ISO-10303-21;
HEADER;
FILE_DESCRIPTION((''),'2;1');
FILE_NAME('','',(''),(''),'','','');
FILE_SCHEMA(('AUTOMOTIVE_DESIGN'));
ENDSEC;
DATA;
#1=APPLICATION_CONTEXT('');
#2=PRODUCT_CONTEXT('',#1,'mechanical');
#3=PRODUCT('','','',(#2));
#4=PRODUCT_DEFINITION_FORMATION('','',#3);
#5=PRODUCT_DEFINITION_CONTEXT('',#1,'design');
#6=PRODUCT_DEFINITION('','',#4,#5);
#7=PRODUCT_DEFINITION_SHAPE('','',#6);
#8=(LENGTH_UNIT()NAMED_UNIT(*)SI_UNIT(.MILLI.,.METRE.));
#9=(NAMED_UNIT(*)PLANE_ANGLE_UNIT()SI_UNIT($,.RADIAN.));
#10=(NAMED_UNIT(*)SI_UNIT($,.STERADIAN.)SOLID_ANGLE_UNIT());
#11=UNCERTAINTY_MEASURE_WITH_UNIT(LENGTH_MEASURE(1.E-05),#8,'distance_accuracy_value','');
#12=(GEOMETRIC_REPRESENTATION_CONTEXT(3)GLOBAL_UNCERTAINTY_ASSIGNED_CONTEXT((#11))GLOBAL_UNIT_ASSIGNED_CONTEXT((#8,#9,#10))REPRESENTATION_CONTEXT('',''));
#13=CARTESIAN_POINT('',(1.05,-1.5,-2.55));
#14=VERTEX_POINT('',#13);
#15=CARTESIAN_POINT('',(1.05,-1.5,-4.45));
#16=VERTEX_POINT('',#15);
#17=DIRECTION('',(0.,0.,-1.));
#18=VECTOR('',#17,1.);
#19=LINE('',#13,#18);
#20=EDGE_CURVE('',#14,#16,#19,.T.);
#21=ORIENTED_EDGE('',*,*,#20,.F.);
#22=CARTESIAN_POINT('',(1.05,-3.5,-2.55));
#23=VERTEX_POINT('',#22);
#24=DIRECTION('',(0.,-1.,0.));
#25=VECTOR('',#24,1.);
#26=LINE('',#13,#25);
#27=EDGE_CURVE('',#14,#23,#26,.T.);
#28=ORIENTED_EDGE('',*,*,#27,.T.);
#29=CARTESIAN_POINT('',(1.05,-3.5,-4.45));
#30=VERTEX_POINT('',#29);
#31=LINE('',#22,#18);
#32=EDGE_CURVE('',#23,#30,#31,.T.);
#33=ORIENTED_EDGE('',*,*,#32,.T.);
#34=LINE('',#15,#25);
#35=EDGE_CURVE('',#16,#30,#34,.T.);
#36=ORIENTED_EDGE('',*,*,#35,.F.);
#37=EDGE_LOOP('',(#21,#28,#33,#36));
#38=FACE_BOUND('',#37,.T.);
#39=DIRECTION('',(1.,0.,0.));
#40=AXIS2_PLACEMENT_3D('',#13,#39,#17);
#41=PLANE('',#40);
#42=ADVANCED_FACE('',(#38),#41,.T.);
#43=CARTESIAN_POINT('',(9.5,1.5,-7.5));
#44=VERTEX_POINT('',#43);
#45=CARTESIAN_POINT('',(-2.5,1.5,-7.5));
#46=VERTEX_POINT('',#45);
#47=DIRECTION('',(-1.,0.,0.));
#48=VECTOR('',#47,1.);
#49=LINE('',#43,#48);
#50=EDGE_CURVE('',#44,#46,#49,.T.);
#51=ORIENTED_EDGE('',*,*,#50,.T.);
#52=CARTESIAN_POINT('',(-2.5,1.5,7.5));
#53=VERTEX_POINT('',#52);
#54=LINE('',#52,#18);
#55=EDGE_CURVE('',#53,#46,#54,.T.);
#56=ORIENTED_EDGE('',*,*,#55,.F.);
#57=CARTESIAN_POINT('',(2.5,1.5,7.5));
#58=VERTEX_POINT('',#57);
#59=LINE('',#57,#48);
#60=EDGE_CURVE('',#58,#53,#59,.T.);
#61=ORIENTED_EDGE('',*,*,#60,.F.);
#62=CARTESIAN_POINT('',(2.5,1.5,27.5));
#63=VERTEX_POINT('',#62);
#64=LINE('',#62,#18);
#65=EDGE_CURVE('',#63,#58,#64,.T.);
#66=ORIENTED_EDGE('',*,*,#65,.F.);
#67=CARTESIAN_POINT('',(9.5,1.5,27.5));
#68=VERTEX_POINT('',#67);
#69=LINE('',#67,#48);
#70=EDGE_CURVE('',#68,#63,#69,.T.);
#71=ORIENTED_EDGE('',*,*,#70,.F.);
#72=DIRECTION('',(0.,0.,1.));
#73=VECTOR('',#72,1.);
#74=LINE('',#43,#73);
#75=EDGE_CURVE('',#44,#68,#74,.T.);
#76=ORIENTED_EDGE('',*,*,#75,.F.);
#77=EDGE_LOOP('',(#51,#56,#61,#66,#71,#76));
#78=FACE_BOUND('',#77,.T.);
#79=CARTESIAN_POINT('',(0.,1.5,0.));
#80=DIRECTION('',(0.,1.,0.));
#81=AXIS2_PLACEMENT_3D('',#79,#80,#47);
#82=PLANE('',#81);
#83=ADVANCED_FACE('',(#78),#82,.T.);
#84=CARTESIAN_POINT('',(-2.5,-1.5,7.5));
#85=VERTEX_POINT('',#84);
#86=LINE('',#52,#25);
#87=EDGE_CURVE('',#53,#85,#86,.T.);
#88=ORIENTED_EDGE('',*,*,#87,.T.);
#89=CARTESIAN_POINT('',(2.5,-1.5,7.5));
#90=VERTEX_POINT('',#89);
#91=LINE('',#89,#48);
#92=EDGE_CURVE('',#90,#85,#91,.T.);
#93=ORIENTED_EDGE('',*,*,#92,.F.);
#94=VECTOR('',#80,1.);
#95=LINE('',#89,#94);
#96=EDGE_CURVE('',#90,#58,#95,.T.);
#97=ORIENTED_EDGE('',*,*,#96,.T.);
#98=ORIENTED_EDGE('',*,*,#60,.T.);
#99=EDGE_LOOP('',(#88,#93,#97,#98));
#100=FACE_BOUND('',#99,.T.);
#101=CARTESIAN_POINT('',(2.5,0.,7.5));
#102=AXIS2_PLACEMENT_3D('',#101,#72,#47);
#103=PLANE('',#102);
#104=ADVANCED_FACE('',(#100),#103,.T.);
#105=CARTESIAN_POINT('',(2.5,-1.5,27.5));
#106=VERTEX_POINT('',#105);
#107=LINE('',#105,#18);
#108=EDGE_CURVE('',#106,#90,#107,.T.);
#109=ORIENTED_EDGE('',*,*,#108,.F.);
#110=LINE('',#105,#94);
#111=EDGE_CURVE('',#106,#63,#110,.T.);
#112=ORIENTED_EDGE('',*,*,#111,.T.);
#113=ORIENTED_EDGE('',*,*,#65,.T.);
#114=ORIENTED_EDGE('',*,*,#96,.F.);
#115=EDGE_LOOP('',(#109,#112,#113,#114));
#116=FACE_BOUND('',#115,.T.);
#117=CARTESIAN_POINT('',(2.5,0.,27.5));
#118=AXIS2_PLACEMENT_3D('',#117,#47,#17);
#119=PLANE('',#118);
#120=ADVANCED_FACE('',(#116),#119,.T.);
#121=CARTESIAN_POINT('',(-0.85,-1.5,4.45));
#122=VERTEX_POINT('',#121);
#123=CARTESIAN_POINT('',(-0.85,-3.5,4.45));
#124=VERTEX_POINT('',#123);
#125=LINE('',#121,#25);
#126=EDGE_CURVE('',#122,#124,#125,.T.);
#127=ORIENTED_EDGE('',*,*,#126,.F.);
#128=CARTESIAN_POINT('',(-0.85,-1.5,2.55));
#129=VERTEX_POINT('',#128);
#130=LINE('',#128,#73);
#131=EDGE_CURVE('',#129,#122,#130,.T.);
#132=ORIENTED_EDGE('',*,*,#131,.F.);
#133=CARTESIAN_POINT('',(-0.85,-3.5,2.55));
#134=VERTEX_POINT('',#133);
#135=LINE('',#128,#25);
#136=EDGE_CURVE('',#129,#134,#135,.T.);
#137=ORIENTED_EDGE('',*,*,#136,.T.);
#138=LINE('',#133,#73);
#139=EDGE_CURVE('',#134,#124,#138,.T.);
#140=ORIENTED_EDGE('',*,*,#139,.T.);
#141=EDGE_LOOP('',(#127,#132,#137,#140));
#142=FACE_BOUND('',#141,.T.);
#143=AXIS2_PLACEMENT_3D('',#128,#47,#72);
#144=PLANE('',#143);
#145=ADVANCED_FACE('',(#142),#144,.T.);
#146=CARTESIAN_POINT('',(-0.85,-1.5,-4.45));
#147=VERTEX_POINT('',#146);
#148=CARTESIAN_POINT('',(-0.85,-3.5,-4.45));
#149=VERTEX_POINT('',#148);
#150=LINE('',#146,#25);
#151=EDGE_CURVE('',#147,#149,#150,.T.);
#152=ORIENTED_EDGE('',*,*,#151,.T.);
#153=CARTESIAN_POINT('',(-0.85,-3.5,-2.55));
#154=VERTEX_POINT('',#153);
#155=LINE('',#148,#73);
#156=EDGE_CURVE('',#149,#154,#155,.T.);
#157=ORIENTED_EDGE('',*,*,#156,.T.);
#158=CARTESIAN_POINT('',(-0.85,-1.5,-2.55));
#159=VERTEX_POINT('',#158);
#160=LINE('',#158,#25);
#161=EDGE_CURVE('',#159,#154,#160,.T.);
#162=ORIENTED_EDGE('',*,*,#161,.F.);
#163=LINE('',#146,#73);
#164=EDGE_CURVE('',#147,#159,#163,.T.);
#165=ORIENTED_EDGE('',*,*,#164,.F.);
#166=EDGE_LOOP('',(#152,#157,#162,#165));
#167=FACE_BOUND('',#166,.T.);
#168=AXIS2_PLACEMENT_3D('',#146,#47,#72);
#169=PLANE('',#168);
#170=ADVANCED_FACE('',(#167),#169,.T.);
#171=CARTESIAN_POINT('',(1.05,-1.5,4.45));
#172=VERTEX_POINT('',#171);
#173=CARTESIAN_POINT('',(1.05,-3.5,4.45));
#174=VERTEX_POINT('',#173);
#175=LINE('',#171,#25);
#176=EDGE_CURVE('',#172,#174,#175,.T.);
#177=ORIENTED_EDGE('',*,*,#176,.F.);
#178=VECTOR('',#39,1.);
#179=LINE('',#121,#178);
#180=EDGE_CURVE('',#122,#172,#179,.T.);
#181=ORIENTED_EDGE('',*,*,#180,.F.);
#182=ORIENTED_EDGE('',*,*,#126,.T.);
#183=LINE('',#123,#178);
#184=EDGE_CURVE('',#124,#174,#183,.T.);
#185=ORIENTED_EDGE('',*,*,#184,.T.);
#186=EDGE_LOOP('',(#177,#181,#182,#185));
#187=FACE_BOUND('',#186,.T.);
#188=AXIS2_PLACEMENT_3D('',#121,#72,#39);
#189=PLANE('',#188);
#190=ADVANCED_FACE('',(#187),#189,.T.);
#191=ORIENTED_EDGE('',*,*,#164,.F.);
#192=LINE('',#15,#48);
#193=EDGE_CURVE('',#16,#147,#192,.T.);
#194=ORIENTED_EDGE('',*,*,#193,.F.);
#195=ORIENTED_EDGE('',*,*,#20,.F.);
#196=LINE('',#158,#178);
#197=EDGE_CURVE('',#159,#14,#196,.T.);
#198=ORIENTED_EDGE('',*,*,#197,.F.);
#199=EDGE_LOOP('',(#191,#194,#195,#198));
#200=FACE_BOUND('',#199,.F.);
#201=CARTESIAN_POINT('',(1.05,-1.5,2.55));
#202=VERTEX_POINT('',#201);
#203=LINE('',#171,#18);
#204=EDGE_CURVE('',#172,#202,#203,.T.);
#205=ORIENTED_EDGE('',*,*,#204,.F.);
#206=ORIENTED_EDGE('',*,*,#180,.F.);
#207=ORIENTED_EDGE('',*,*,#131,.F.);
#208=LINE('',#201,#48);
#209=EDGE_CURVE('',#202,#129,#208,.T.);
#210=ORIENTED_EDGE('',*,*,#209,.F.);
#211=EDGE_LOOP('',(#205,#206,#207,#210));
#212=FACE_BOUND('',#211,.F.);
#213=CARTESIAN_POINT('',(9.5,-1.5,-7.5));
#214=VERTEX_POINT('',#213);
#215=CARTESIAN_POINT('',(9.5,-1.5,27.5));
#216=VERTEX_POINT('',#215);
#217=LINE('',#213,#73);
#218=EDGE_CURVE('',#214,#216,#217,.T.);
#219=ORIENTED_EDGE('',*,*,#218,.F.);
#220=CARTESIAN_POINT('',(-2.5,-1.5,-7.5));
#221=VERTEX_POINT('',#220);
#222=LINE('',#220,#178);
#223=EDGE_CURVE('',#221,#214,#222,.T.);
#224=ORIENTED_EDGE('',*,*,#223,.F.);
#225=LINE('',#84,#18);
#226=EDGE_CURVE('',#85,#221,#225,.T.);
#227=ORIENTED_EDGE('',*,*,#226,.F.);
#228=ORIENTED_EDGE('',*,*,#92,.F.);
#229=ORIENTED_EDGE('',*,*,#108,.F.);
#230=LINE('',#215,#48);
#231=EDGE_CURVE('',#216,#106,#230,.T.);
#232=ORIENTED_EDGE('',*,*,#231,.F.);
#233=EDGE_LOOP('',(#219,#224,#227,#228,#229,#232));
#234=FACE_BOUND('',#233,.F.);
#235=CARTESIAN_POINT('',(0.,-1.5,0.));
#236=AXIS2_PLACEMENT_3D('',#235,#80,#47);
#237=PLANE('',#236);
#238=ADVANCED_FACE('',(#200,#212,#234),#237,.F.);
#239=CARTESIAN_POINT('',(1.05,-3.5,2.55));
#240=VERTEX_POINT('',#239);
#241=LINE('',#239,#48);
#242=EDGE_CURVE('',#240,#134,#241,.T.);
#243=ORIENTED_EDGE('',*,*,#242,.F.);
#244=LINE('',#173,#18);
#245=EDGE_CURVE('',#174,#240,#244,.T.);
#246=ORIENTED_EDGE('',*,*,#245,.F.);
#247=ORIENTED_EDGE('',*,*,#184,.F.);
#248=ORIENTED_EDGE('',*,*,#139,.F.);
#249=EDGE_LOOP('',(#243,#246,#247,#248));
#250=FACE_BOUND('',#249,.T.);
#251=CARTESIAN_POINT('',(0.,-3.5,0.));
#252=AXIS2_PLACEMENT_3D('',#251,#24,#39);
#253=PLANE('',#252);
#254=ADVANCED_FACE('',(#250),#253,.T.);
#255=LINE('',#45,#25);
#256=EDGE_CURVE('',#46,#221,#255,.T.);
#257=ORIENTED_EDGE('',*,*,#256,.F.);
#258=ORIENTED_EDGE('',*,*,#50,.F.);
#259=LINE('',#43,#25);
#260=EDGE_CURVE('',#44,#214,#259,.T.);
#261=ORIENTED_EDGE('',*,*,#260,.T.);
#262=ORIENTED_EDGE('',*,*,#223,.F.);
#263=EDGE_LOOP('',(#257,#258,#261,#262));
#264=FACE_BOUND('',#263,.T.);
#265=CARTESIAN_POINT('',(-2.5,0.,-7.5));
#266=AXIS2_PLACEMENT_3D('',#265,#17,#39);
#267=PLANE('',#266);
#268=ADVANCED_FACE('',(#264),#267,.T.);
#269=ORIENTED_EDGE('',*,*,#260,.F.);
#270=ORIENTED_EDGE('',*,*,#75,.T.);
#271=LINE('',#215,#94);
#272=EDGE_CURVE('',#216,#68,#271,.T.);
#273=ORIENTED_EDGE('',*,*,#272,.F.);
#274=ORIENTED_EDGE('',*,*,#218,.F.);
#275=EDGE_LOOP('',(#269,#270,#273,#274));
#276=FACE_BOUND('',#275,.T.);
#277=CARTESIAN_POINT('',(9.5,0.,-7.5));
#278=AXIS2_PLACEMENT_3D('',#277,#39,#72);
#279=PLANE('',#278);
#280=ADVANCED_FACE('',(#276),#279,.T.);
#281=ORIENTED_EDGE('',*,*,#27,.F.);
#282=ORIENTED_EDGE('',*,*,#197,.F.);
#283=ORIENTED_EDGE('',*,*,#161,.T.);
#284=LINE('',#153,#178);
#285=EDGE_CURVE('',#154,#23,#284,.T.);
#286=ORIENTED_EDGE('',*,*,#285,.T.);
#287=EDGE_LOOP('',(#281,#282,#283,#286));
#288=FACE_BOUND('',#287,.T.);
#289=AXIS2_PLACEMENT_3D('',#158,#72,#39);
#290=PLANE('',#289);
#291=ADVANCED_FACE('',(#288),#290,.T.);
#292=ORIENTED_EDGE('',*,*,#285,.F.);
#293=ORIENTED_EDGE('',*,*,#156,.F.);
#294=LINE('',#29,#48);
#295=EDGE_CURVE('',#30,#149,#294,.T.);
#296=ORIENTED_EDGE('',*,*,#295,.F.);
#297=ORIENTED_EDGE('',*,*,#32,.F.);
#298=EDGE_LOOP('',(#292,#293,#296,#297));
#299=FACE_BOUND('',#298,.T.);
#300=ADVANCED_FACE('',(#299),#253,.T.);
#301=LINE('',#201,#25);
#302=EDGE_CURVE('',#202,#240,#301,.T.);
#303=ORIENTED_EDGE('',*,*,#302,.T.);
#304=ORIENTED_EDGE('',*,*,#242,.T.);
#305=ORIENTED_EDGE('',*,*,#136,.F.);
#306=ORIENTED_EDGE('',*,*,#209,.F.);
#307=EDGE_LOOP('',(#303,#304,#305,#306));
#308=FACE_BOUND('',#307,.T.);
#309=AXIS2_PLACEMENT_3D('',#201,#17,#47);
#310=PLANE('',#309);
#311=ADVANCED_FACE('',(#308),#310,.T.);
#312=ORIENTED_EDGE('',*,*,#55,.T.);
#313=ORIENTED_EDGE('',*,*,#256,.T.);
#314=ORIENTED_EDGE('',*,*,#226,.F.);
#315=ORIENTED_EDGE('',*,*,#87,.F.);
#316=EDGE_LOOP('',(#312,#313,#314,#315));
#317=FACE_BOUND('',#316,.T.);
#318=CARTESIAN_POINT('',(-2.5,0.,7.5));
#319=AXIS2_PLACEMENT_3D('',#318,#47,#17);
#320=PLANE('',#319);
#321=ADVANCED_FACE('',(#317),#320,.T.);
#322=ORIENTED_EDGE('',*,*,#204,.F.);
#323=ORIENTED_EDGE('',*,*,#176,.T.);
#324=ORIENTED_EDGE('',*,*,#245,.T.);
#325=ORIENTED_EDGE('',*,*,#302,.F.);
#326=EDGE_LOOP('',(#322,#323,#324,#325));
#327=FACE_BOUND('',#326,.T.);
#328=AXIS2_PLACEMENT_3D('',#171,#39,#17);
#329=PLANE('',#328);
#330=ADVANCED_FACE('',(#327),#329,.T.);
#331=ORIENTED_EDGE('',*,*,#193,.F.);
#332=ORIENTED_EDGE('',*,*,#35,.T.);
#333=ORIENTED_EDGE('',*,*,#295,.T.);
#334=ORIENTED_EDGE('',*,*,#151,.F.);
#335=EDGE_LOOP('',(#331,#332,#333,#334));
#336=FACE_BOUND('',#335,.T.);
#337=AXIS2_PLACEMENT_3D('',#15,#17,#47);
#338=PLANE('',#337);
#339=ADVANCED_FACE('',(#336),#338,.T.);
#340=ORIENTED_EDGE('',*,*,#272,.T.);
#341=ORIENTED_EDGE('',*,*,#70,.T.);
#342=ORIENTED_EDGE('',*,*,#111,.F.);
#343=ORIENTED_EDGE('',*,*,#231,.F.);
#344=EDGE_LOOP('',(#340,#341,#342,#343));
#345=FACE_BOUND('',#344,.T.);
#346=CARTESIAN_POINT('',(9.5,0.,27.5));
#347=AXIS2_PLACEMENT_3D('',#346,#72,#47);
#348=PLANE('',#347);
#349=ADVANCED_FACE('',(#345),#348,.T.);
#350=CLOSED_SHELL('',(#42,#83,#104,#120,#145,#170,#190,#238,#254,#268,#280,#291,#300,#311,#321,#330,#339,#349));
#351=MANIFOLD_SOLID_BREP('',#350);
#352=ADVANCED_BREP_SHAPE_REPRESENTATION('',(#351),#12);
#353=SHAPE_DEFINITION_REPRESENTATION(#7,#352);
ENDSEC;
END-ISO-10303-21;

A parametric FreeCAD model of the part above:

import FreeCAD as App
import Part
import Sketcher
Q = App.Units.Quantity

doc = App.newDocument("Part")
body = doc.addObject("PartDesign::Body", "Body")

# Sketch on XZ plane
sketch1 = body.newObject("Sketcher::SketchObject", "Sketch")
sketch1.AttachmentSupport = (doc.getObject("XZ_Plane"), [""])
sketch1.MapMode = "FlatFace"
sketch1.addGeometry(Part.LineSegment(App.Vector(-2, 8, 0), App.Vector(2, 8, 0)), False)
sketch1.addGeometry(Part.LineSegment(App.Vector(2, 8, 0), App.Vector(2, 28, 0)), False)
sketch1.addGeometry(Part.LineSegment(App.Vector(2, 28, 0), App.Vector(10, 28, 0)), False)
sketch1.addGeometry(Part.LineSegment(App.Vector(10, 28, 0), App.Vector(10, -8, 0)), False)
sketch1.addGeometry(Part.LineSegment(App.Vector(10, -8, 0), App.Vector(-2, -8, 0)), False)
sketch1.addGeometry(Part.LineSegment(App.Vector(-2, -8, 0), App.Vector(-2, 8, 0)), False)
sketch1.addConstraint(Sketcher.Constraint("Coincident", 0, 2, 1, 1))
sketch1.addConstraint(Sketcher.Constraint("Coincident", 1, 2, 2, 1))
sketch1.addConstraint(Sketcher.Constraint("Coincident", 2, 2, 3, 1))
sketch1.addConstraint(Sketcher.Constraint("Coincident", 3, 2, 4, 1))
sketch1.addConstraint(Sketcher.Constraint("Coincident", 4, 2, 5, 1))
sketch1.addConstraint(Sketcher.Constraint("Coincident", 5, 2, 0, 1))
sketch1.addConstraint(Sketcher.Constraint("Horizontal", 0))
sketch1.addConstraint(Sketcher.Constraint("Vertical", 1))
sketch1.addConstraint(Sketcher.Constraint("Horizontal", 2))
sketch1.addConstraint(Sketcher.Constraint("Vertical", 3))
sketch1.addConstraint(Sketcher.Constraint("Horizontal", 4))
sketch1.addConstraint(Sketcher.Constraint("Vertical", 5))
sketch1.addConstraint(Sketcher.Constraint("Symmetric", 0, 2, 4, 2, -1, 1))
sketch1.addConstraint(Sketcher.Constraint("DistanceX", 0, 1, 0, 2, Q("5 mm")))
sketch1.addConstraint(Sketcher.Constraint("DistanceX", 2, 1, 2, 2, Q("7 mm")))
sketch1.addConstraint(Sketcher.Constraint("DistanceY", 3, 2, 3, 1, Q("35 mm")))
sketch1.addConstraint(Sketcher.Constraint("DistanceY", 5, 1, 5, 2, Q("15 mm")))
pad1 = body.newObject("PartDesign::Pad", "Pad")
pad1.Profile = sketch1
pad1.Length = 3
pad1.Midplane = True

# Sketch on XZ plane
sketch2 = body.newObject("Sketcher::SketchObject", "Sketch001")
sketch2.AttachmentSupport = (doc.getObject("XZ_Plane"), [""])
sketch2.MapMode = "FlatFace"
sketch2.AttachmentOffset = App.Placement(App.Vector(0, 0, 1.5), App.Rotation())
sketch2.addGeometry(Part.LineSegment(App.Vector(-0.8, 2.5, 0), App.Vector(1.1, 2.5, 0)), False)
sketch2.addGeometry(Part.LineSegment(App.Vector(1.1, 2.5, 0), App.Vector(1.1, 4.5, 0)), False)
sketch2.addGeometry(Part.LineSegment(App.Vector(1.1, 4.5, 0), App.Vector(-0.8, 4.5, 0)), False)
sketch2.addGeometry(Part.LineSegment(App.Vector(-0.8, 4.5, 0), App.Vector(-0.8, 2.5, 0)), False)
sketch2.addGeometry(Part.LineSegment(App.Vector(1.1, -2.5, 0), App.Vector(-0.8, -2.5, 0)), False)
sketch2.addGeometry(Part.LineSegment(App.Vector(-0.8, -2.5, 0), App.Vector(-0.8, -4.5, 0)), False)
sketch2.addGeometry(Part.LineSegment(App.Vector(-0.8, -4.5, 0), App.Vector(1.1, -4.5, 0)), False)
sketch2.addGeometry(Part.LineSegment(App.Vector(1.1, -4.5, 0), App.Vector(1.1, -2.5, 0)), False)
sketch2.addConstraint(Sketcher.Constraint("Coincident", 0, 2, 1, 1))
sketch2.addConstraint(Sketcher.Constraint("Coincident", 1, 2, 2, 1))
sketch2.addConstraint(Sketcher.Constraint("Coincident", 2, 2, 3, 1))
sketch2.addConstraint(Sketcher.Constraint("Coincident", 3, 2, 0, 1))
sketch2.addConstraint(Sketcher.Constraint("Coincident", 4, 2, 5, 1))
sketch2.addConstraint(Sketcher.Constraint("Coincident", 5, 2, 6, 1))
sketch2.addConstraint(Sketcher.Constraint("Coincident", 6, 2, 7, 1))
sketch2.addConstraint(Sketcher.Constraint("Coincident", 7, 2, 4, 1))
sketch2.addConstraint(Sketcher.Constraint("Horizontal", 0))
sketch2.addConstraint(Sketcher.Constraint("Vertical", 1))
sketch2.addConstraint(Sketcher.Constraint("Horizontal", 2))
sketch2.addConstraint(Sketcher.Constraint("Vertical", 3))
sketch2.addConstraint(Sketcher.Constraint("Horizontal", 4))
sketch2.addConstraint(Sketcher.Constraint("Vertical", 5))
sketch2.addConstraint(Sketcher.Constraint("Horizontal", 6))
sketch2.addConstraint(Sketcher.Constraint("Vertical", 7))
sketch2.addConstraint(Sketcher.Constraint("Symmetric", 3, 2, 4, 2, -1))
sketch2.addConstraint(Sketcher.Constraint("Symmetric", 1, 2, 6, 2, -1))
sketch2.addConstraint(Sketcher.Constraint("Equal", 6, 1))
sketch2.addConstraint(Sketcher.Constraint("DistanceY", 4, 2, 2, 2, Q("7 mm")))
sketch2.addConstraint(Sketcher.Constraint("DistanceX", 0, 1, 0, 2, Q("1.9 mm")))
sketch2.addConstraint(Sketcher.Constraint("DistanceX", -1, 1, 0, 2, Q("1.05 mm")))
pad2 = body.newObject("PartDesign::Pad", "Pad001")
pad2.Profile = sketch2
pad2.Length = 2

doc.recompute()
